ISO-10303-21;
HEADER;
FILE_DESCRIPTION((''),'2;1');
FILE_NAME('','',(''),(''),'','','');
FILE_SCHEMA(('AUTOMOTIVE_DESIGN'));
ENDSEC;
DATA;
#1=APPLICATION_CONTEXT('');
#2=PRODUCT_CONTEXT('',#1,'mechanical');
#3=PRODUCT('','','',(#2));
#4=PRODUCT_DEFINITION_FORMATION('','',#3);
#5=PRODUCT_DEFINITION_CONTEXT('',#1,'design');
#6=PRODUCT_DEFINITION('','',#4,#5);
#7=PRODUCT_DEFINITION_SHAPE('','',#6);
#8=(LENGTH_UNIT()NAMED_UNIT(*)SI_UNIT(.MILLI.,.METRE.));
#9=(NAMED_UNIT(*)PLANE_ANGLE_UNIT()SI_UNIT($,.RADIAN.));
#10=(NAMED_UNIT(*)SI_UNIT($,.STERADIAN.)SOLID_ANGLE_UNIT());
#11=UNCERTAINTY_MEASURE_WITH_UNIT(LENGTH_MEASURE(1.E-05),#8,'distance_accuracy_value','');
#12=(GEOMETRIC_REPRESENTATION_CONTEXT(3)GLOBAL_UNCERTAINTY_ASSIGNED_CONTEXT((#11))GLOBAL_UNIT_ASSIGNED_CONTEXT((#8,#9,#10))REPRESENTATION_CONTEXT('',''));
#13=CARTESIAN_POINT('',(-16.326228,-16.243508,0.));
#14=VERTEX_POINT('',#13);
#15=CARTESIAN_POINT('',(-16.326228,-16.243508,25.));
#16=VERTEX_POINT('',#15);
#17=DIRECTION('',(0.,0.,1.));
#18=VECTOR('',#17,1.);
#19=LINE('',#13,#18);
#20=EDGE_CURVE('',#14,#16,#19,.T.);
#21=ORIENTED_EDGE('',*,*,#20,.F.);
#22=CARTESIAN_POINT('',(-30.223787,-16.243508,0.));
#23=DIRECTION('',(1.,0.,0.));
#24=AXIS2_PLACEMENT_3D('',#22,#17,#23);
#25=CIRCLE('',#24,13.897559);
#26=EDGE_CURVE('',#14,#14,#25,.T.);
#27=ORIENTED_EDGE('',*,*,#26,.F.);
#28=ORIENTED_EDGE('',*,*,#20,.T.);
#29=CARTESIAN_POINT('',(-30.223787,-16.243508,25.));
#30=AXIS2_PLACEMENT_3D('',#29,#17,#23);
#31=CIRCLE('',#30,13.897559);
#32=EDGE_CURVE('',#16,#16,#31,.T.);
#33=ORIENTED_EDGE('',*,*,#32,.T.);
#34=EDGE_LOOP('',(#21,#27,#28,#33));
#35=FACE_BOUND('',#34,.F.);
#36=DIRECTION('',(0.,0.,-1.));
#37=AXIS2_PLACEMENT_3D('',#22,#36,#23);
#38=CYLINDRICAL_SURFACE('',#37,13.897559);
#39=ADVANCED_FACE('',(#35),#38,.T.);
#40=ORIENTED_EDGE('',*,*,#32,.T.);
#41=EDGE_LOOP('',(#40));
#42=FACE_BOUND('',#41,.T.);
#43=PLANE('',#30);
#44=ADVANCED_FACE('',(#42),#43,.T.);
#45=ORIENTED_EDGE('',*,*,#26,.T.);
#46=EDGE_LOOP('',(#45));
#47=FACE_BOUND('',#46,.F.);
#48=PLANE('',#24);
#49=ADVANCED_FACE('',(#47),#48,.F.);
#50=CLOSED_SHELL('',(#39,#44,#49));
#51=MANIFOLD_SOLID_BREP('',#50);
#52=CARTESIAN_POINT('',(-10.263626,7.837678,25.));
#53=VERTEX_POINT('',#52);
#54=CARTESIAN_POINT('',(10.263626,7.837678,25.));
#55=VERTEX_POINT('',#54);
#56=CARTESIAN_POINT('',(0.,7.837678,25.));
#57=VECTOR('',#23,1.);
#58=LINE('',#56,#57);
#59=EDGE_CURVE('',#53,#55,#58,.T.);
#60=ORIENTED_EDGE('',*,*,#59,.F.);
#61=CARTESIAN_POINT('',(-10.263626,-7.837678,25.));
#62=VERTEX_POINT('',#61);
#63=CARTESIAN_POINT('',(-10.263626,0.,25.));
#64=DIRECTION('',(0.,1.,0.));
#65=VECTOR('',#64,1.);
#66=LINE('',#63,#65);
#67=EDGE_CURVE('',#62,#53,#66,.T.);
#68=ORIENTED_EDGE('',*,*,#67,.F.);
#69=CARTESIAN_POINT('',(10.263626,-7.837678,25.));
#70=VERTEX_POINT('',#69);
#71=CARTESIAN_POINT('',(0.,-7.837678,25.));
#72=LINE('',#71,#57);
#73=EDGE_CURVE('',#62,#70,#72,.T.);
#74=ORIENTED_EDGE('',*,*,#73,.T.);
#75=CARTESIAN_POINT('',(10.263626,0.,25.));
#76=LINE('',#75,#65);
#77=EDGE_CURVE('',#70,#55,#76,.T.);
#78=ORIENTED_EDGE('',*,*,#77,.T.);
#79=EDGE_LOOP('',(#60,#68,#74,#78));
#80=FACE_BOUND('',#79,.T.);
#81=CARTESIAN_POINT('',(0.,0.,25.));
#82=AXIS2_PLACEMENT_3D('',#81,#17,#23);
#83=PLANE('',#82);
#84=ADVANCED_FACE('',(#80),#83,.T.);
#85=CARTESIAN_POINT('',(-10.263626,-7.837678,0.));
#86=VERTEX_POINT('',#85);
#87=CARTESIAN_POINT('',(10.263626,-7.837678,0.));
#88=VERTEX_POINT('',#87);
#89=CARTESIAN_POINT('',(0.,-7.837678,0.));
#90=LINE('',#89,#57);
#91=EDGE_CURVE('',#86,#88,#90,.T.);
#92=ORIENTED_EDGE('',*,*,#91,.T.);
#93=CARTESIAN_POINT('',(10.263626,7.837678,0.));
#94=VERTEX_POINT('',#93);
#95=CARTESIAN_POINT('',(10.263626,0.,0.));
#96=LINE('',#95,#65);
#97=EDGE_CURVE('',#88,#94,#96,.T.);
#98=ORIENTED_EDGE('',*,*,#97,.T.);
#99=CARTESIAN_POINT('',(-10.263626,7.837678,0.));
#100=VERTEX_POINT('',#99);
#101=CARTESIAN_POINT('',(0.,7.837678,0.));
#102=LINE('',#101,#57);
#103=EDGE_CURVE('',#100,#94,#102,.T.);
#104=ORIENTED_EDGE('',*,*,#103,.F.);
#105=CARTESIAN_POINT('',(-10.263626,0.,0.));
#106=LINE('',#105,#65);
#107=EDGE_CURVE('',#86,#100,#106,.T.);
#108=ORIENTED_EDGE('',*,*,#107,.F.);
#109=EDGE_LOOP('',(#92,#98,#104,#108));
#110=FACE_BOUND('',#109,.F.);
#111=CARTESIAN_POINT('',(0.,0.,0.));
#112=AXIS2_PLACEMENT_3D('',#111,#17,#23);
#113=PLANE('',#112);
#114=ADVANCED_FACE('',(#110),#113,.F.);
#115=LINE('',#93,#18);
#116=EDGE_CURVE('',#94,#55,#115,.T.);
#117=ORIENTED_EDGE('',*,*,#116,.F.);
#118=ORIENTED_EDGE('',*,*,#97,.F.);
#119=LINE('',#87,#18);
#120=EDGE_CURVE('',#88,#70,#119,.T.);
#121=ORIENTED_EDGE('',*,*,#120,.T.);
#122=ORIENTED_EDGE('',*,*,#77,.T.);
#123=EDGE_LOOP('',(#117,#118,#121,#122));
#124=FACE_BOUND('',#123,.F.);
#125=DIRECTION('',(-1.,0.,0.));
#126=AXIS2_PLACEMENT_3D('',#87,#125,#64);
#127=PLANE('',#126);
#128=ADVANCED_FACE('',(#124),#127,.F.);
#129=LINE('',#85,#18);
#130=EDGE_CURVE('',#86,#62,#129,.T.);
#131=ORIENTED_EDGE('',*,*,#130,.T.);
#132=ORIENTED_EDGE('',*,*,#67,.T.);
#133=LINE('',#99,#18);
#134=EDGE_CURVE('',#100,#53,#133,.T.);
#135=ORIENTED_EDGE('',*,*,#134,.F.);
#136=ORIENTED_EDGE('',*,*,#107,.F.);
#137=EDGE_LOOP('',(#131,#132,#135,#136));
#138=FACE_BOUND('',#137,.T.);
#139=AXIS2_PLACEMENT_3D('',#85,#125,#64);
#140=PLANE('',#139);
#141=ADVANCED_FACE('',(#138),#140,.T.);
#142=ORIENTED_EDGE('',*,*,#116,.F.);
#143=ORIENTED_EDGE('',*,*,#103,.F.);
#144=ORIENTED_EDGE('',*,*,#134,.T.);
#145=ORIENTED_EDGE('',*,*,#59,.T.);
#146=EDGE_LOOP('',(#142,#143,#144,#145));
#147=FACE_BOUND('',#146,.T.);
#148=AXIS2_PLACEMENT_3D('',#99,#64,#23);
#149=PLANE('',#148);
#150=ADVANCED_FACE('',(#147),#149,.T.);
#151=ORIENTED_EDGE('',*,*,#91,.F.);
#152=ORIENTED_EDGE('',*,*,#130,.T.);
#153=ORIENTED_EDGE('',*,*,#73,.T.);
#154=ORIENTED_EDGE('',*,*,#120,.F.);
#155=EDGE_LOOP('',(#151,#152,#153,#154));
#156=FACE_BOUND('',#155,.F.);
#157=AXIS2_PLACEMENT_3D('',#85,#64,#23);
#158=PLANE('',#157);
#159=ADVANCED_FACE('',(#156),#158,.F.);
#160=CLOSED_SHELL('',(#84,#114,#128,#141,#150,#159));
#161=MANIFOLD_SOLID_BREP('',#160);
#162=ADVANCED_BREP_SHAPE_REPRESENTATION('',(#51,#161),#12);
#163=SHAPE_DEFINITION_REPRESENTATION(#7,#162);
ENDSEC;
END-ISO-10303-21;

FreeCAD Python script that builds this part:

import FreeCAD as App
import Part
import Sketcher

V = App.Vector
Q = App.Units.Quantity


def add_polygon(sketch, points):
    """Adds a closed chain of lines whose ends are joined by coincident constraints."""
    first, n = sketch.GeometryCount, len(points)
    for a, b in zip(points, points[1:] + points[:1]):
        sketch.addGeometry(Part.LineSegment(App.Vector(*a, 0), App.Vector(*b, 0)), False)
    for i in range(n):
        sketch.addConstraint(Sketcher.Constraint("Coincident", first + i, 2, first + (i + 1) % n, 1))

doc = App.newDocument("Part")
body = doc.addObject("PartDesign::Body", "Body")

# Sketch on XY plane
sketch1 = body.newObject("Sketcher::SketchObject", "Sketch")
sketch1.AttachmentSupport = (doc.getObject("XY_Plane"), [""])
sketch1.MapMode = "FlatFace"
add_polygon(sketch1, [(-10.263626, 7.837678), (-10.263626, -7.837678), (10.263626, -7.837678), (10.263626, 7.837678)])  # lines 0-3
sketch1.addConstraint(Sketcher.Constraint("Vertical", 0))
sketch1.addConstraint(Sketcher.Constraint("Horizontal", 1))
sketch1.addConstraint(Sketcher.Constraint("Vertical", 2))
sketch1.addConstraint(Sketcher.Constraint("Horizontal", 3))
sketch1.addConstraint(Sketcher.Constraint("Symmetric", 0, 2, 2, 2, -1, 1))
sketch1.addConstraint(Sketcher.Constraint("DistanceX", 1, 1, 1, 2, Q("20.527252 mm")))
sketch1.addConstraint(Sketcher.Constraint("DistanceY", 0, 2, 0, 1, Q("15.675356 mm")))
pad1 = body.newObject("PartDesign::Pad", "Pad")
pad1.Profile = sketch1
pad1.Length = 25
body2 = doc.addObject("PartDesign::Body", "Body001")

# Sketch on XY plane
sketch2 = body2.newObject("Sketcher::SketchObject", "Sketch001")
sketch2.AttachmentSupport = (doc.getObject("XY_Plane001"), [""])
sketch2.MapMode = "FlatFace"
sketch2.addGeometry(Part.Circle(V(-30.223787, -16.243508, 0), V(0, 0, 1), 13.897559), False)
sketch2.addConstraint(Sketcher.Constraint("Diameter", 0, Q("27.795118 mm")))
sketch2.addConstraint(Sketcher.Constraint("DistanceX", 0, 3, -1, 1, Q("30.223787 mm")))
sketch2.addConstraint(Sketcher.Constraint("DistanceY", 0, 3, -1, 1, Q("16.243508 mm")))
pad2 = body2.newObject("PartDesign::Pad", "Pad001")
pad2.Profile = sketch2
pad2.Length = 25

doc.recompute()
